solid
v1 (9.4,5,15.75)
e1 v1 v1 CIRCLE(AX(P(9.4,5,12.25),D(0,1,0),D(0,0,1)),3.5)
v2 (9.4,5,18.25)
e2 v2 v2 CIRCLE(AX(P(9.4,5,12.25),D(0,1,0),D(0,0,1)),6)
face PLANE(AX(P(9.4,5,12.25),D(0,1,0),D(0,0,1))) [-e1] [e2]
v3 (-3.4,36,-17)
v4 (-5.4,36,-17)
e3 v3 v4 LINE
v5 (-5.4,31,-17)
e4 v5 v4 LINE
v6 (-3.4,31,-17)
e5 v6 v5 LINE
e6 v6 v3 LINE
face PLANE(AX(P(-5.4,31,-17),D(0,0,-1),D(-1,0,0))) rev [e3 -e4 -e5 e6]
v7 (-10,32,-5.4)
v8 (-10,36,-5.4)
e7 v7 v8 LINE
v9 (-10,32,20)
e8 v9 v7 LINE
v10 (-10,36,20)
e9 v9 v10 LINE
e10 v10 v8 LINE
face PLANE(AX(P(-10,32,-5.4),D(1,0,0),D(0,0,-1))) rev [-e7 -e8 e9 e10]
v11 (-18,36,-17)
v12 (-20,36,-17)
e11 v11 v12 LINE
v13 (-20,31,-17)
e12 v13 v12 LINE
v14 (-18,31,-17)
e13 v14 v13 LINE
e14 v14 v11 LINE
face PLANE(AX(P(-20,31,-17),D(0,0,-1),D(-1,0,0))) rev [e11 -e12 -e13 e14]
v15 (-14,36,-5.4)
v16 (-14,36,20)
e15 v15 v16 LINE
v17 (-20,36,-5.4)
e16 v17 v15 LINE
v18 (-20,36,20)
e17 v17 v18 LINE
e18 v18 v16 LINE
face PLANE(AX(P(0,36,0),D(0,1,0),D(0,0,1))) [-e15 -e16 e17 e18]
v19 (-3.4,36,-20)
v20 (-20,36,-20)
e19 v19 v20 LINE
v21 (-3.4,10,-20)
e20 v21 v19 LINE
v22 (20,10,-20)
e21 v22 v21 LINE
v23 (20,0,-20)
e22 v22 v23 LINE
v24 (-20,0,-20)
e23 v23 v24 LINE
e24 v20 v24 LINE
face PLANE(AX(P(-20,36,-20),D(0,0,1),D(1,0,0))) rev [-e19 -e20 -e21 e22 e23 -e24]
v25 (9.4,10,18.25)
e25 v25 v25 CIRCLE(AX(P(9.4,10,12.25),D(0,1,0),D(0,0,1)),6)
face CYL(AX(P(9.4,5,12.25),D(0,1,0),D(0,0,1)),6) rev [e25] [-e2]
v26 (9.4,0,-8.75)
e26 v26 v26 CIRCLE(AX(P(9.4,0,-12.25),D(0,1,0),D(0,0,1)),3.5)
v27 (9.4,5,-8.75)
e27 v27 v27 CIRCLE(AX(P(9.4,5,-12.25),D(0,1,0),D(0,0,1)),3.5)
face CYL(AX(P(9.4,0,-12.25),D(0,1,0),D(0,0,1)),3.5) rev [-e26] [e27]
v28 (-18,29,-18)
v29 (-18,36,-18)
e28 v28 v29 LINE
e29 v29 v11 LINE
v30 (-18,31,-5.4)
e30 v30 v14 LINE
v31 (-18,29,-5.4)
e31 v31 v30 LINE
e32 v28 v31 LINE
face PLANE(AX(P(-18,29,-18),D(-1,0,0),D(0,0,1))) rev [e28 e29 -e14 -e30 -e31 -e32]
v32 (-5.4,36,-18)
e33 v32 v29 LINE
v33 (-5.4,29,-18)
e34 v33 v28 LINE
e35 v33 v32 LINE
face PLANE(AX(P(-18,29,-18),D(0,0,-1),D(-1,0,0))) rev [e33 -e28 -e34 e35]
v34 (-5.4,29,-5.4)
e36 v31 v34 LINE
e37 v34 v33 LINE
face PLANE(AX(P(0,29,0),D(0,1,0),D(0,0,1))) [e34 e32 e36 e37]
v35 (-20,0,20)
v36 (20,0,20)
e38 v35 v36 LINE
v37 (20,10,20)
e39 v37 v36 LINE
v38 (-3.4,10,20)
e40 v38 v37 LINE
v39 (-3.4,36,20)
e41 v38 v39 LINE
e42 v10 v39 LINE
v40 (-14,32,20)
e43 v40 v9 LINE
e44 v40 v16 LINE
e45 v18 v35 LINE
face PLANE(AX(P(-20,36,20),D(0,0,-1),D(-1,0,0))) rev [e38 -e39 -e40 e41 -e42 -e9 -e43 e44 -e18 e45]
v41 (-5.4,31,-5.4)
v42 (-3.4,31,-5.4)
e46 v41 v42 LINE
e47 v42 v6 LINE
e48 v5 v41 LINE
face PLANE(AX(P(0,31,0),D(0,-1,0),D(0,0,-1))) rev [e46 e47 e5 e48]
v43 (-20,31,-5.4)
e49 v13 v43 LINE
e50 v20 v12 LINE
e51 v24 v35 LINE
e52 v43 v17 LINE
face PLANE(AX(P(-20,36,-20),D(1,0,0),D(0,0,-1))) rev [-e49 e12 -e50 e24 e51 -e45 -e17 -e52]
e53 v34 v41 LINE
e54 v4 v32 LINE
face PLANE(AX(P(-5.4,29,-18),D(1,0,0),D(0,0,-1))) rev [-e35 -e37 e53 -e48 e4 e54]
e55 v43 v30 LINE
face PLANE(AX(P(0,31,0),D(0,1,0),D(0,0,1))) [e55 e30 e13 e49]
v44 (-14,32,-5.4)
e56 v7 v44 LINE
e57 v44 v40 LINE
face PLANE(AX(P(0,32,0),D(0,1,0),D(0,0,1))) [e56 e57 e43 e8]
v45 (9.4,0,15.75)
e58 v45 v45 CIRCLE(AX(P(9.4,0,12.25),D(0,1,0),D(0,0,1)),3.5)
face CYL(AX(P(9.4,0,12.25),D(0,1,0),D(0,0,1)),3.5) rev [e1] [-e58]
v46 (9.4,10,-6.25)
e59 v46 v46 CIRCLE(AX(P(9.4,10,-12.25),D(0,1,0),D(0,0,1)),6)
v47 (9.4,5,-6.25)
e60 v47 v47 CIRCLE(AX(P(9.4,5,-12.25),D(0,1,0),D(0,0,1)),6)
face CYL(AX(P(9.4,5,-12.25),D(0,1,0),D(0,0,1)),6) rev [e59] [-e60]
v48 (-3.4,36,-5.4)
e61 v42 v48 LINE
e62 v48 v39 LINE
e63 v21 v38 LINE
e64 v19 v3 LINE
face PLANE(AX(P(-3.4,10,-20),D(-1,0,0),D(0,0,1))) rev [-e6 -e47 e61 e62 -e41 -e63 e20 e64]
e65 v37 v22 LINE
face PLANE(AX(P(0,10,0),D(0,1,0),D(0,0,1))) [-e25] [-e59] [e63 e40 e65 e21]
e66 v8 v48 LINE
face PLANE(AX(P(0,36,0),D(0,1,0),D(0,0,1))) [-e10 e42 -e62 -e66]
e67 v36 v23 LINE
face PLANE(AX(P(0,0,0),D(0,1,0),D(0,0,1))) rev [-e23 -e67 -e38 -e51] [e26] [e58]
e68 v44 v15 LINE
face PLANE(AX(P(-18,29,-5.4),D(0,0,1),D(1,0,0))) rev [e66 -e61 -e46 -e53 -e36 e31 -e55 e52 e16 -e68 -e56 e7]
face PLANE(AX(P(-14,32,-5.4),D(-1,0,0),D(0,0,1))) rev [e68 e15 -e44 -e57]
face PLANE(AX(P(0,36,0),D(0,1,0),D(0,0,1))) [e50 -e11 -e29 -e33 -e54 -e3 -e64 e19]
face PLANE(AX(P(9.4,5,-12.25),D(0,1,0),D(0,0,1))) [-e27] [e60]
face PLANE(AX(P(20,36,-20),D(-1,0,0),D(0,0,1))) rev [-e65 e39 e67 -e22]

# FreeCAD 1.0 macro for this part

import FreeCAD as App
import Part
import Sketcher

V = App.Vector

doc = App.newDocument("Part")
body = doc.addObject("PartDesign::Body", "Body")

# Sketch on XZ plane
sketch1 = body.newObject("Sketcher::SketchObject", "Sketch")
sketch1.AttachmentSupport = (doc.getObject("XZ_Plane"), [""])
sketch1.MapMode = "FlatFace"
sketch1.addGeometry(Part.LineSegment(V(-20, -20, 0), V(-20, 20, 0)), False)
sketch1.addGeometry(Part.LineSegment(V(-20, 20, 0), V(20, 20, 0)), False)
sketch1.addGeometry(Part.LineSegment(V(20, 20, 0), V(20, -20, 0)), False)
sketch1.addGeometry(Part.LineSegment(V(20, -20, 0), V(-20, -20, 0)), False)
sketch1.addConstraint(Sketcher.Constraint("Coincident", 0, 2, 1, 1))
sketch1.addConstraint(Sketcher.Constraint("Coincident", 1, 2, 2, 1))
sketch1.addConstraint(Sketcher.Constraint("Coincident", 2, 2, 3, 1))
sketch1.addConstraint(Sketcher.Constraint("Coincident", 3, 2, 0, 1))
sketch1.addConstraint(Sketcher.Constraint("Vertical", 0))
sketch1.addConstraint(Sketcher.Constraint("Horizontal", 1))
sketch1.addConstraint(Sketcher.Constraint("Vertical", 2))
sketch1.addConstraint(Sketcher.Constraint("Horizontal", 3))
sketch1.addConstraint(Sketcher.Constraint("Symmetric", 0, 2, 2, 2, -1, 1))
sketch1.addConstraint(Sketcher.Constraint("Equal", 3, 0))
sketch1.addConstraint(Sketcher.Constraint("DistanceX", 1, 1, 1, 2, 40.0))
pad1 = body.newObject("PartDesign::Pad", "Pad")
pad1.Profile = sketch1
pad1.Length = 36
pad1.Reversed = True

# Sketch on XZ plane
sketch2 = body.newObject("Sketcher::SketchObject", "Sketch001")
sketch2.AttachmentSupport = (doc.getObject("XZ_Plane"), [""])
sketch2.MapMode = "FlatFace"
sketch2.AttachmentOffset = App.Placement(V(0, 0, -36), App.Rotation())
sketch2.addGeometry(Part.LineSegment(V(-18, -18, 0), V(-18, -5.4, 0)), False)
sketch2.addGeometry(Part.LineSegment(V(-18, -5.4, 0), V(-5.4, -5.4, 0)), False)
sketch2.addGeometry(Part.LineSegment(V(-5.4, -5.4, 0), V(-5.4, -18, 0)), False)
sketch2.addGeometry(Part.LineSegment(V(-5.4, -18, 0), V(-18, -18, 0)), False)
sketch2.addConstraint(Sketcher.Constraint("Coincident", 0, 2, 1, 1))
sketch2.addConstraint(Sketcher.Constraint("Coincident", 1, 2, 2, 1))
sketch2.addConstraint(Sketcher.Constraint("Coincident", 2, 2, 3, 1))
sketch2.addConstraint(Sketcher.Constraint("Coincident", 3, 2, 0, 1))
sketch2.addConstraint(Sketcher.Constraint("Vertical", 0))
sketch2.addConstraint(Sketcher.Constraint("Horizontal", 1))
sketch2.addConstraint(Sketcher.Constraint("Vertical", 2))
sketch2.addConstraint(Sketcher.Constraint("Horizontal", 3))
sketch2.addConstraint(Sketcher.Constraint("Equal", 3, 0))
sketch2.addConstraint(Sketcher.Constraint("DistanceX", 1, 1, 1, 2, 12.6))
sketch2.addConstraint(Sketcher.Constraint("DistanceX", 0, 2, -1, 1, 18.0))
sketch2.addConstraint(Sketcher.Constraint("DistanceY", 2, 2, -1, 1, 18.0))
pocket1 = body.newObject("PartDesign::Pocket", "Pocket")
pocket1.Profile = sketch2
pocket1.Length = 7
pocket1.Reversed = True

# Sketch on XZ plane
sketch3 = body.newObject("Sketcher::SketchObject", "Sketch002")
sketch3.AttachmentSupport = (doc.getObject("XZ_Plane"), [""])
sketch3.MapMode = "FlatFace"
sketch3.AttachmentOffset = App.Placement(V(0, 0, -36), App.Rotation())
sketch3.addGeometry(Part.LineSegment(V(-20, -17, 0), V(-20, -5.4, 0)), False)
sketch3.addGeometry(Part.LineSegment(V(-20, -5.4, 0), V(-18, -5.4, 0)), False)
sketch3.addGeometry(Part.LineSegment(V(-18, -5.4, 0), V(-18, -17, 0)), False)
sketch3.addGeometry(Part.LineSegment(V(-18, -17, 0), V(-20, -17, 0)), False)
sketch3.addGeometry(Part.LineSegment(V(-5.4, -17, 0), V(-5.4, -5.4, 0)), False)
sketch3.addGeometry(Part.LineSegment(V(-5.4, -5.4, 0), V(-3.4, -5.4, 0)), False)
sketch3.addGeometry(Part.LineSegment(V(-3.4, -5.4, 0), V(-3.4, -17, 0)), False)
sketch3.addGeometry(Part.LineSegment(V(-3.4, -17, 0), V(-5.4, -17, 0)), False)
sketch3.addConstraint(Sketcher.Constraint("Coincident", 0, 2, 1, 1))
sketch3.addConstraint(Sketcher.Constraint("Coincident", 1, 2, 2, 1))
sketch3.addConstraint(Sketcher.Constraint("Coincident", 2, 2, 3, 1))
sketch3.addConstraint(Sketcher.Constraint("Coincident", 3, 2, 0, 1))
sketch3.addConstraint(Sketcher.Constraint("Coincident", 4, 2, 5, 1))
sketch3.addConstraint(Sketcher.Constraint("Coincident", 5, 2, 6, 1))
sketch3.addConstraint(Sketcher.Constraint("Coincident", 6, 2, 7, 1))
sketch3.addConstraint(Sketcher.Constraint("Coincident", 7, 2, 4, 1))
sketch3.addConstraint(Sketcher.Constraint("Vertical", 0))
sketch3.addConstraint(Sketcher.Constraint("Horizontal", 1))
sketch3.addConstraint(Sketcher.Constraint("Vertical", 2))
sketch3.addConstraint(Sketcher.Constraint("Horizontal", 3))
sketch3.addConstraint(Sketcher.Constraint("Vertical", 4))
sketch3.addConstraint(Sketcher.Constraint("Horizontal", 5))
sketch3.addConstraint(Sketcher.Constraint("Vertical", 6))
sketch3.addConstraint(Sketcher.Constraint("Horizontal", 7))
sketch3.addConstraint(Sketcher.Constraint("Horizontal", 1, 2, 4, 2))
sketch3.addConstraint(Sketcher.Constraint("Horizontal", 3, 2, 6, 2))
sketch3.addConstraint(Sketcher.Constraint("Equal", 3, 5))
sketch3.addConstraint(Sketcher.Constraint("DistanceX", 1, 1, 1, 2, 2.0))
sketch3.addConstraint(Sketcher.Constraint("DistanceY", 0, 1, 0, 2, 11.6))
sketch3.addConstraint(Sketcher.Constraint("DistanceX", 0, 2, -1, 1, 20.0))
sketch3.addConstraint(Sketcher.Constraint("DistanceY", 2, 2, -1, 1, 17.0))
sketch3.addConstraint(Sketcher.Constraint("DistanceX", 4, 2, -1, 1, 5.4))
pocket2 = body.newObject("PartDesign::Pocket", "Pocket001")
pocket2.Profile = sketch3
pocket2.Length = 5
pocket2.Reversed = True

# Sketch on XZ plane
sketch4 = body.newObject("Sketcher::SketchObject", "Sketch003")
sketch4.AttachmentSupport = (doc.getObject("XZ_Plane"), [""])
sketch4.MapMode = "FlatFace"
sketch4.AttachmentOffset = App.Placement(V(0, 0, -36), App.Rotation())
sketch4.addGeometry(Part.LineSegment(V(-14, -5.4, 0), V(-14, 20, 0)), False)
sketch4.addGeometry(Part.LineSegment(V(-14, 20, 0), V(-10, 20, 0)), False)
sketch4.addGeometry(Part.LineSegment(V(-10, 20, 0), V(-10, -5.4, 0)), False)
sketch4.addGeometry(Part.LineSegment(V(-10, -5.4, 0), V(-14, -5.4, 0)), False)
sketch4.addConstraint(Sketcher.Constraint("Coincident", 0, 2, 1, 1))
sketch4.addConstraint(Sketcher.Constraint("Coincident", 1, 2, 2, 1))
sketch4.addConstraint(Sketcher.Constraint("Coincident", 2, 2, 3, 1))
sketch4.addConstraint(Sketcher.Constraint("Coincident", 3, 2, 0, 1))
sketch4.addConstraint(Sketcher.Constraint("Vertical", 0))
sketch4.addConstraint(Sketcher.Constraint("Horizontal", 1))
sketch4.addConstraint(Sketcher.Constraint("Vertical", 2))
sketch4.addConstraint(Sketcher.Constraint("Horizontal", 3))
sketch4.addConstraint(Sketcher.Constraint("DistanceX", 1, 1, 1, 2, 4.0))
sketch4.addConstraint(Sketcher.Constraint("DistanceY", 0, 1, 0, 2, 25.4))
sketch4.addConstraint(Sketcher.Constraint("DistanceX", 0, 2, -1, 1, 14.0))
sketch4.addConstraint(Sketcher.Constraint("DistanceY", -1, 1, 0, 2, 20.0))
pocket3 = body.newObject("PartDesign::Pocket", "Pocket002")
pocket3.Profile = sketch4
pocket3.Length = 4
pocket3.Reversed = True

# Sketch on XZ plane
sketch5 = body.newObject("Sketcher::SketchObject", "Sketch004")
sketch5.AttachmentSupport = (doc.getObject("XZ_Plane"), [""])
sketch5.MapMode = "FlatFace"
sketch5.AttachmentOffset = App.Placement(V(0, 0, -36), App.Rotation())
sketch5.addGeometry(Part.LineSegment(V(-3.4, -20, 0), V(-3.4, 20, 0)), False)
sketch5.addGeometry(Part.LineSegment(V(-3.4, 20, 0), V(20, 20, 0)), False)
sketch5.addGeometry(Part.LineSegment(V(20, 20, 0), V(20, -20, 0)), False)
sketch5.addGeometry(Part.LineSegment(V(20, -20, 0), V(-3.4, -20, 0)), False)
sketch5.addConstraint(Sketcher.Constraint("Coincident", 0, 2, 1, 1))
sketch5.addConstraint(Sketcher.Constraint("Coincident", 1, 2, 2, 1))
sketch5.addConstraint(Sketcher.Constraint("Coincident", 2, 2, 3, 1))
sketch5.addConstraint(Sketcher.Constraint("Coincident", 3, 2, 0, 1))
sketch5.addConstraint(Sketcher.Constraint("Vertical", 0))
sketch5.addConstraint(Sketcher.Constraint("Horizontal", 1))
sketch5.addConstraint(Sketcher.Constraint("Vertical", 2))
sketch5.addConstraint(Sketcher.Constraint("Horizontal", 3))
sketch5.addConstraint(Sketcher.Constraint("DistanceY", 0, 1, 0, 2, 40.0))
sketch5.addConstraint(Sketcher.Constraint("DistanceX", 1, 1, 1, 2, 23.4))
sketch5.addConstraint(Sketcher.Constraint("DistanceY", -1, 1, 0, 2, 20.0))
sketch5.addConstraint(Sketcher.Constraint("DistanceX", -1, 1, 1, 2, 20.0))
pocket4 = body.newObject("PartDesign::Pocket", "Pocket003")
pocket4.Profile = sketch5
pocket4.Length = 26
pocket4.Reversed = True

# Sketch on XZ plane
sketch6 = body.newObject("Sketcher::SketchObject", "Sketch005")
sketch6.AttachmentSupport = (doc.getObject("XZ_Plane"), [""])
sketch6.MapMode = "FlatFace"
sketch6.AttachmentOffset = App.Placement(V(0, 0, -10), App.Rotation())
sketch6.addGeometry(Part.Circle(V(9.4, -12.25, 0), V(0, 0, 1), 6), False)
sketch6.addGeometry(Part.Circle(V(9.4, 12.25, 0), V(0, 0, 1), 6), False)
sketch6.addConstraint(Sketcher.Constraint("Equal", 0, 1))
sketch6.addConstraint(Sketcher.Constraint("Symmetric", 0, 3, 1, 3, -1))
sketch6.addConstraint(Sketcher.Constraint("Diameter", 0, 12.0))
sketch6.addConstraint(Sketcher.Constraint("DistanceX", -1, 1, 0, 3, 9.4))
sketch6.addConstraint(Sketcher.Constraint("DistanceY", 0, 3, 1, 3, 24.5))
pocket5 = body.newObject("PartDesign::Pocket", "Pocket004")
pocket5.Profile = sketch6
pocket5.Length = 5
pocket5.Reversed = True

# Sketch on XZ plane
sketch7 = body.newObject("Sketcher::SketchObject", "Sketch006")
sketch7.AttachmentSupport = (doc.getObject("XZ_Plane"), [""])
sketch7.MapMode = "FlatFace"
sketch7.AttachmentOffset = App.Placement(V(0, 0, -10), App.Rotation())
sketch7.addGeometry(Part.Circle(V(9.4, -12.25, 0), V(0, 0, 1), 3.5), False)
sketch7.addGeometry(Part.Circle(V(9.4, 12.25, 0), V(0, 0, 1), 3.5), False)
sketch7.addConstraint(Sketcher.Constraint("Equal", 0, 1))
sketch7.addConstraint(Sketcher.Constraint("Symmetric", 0, 3, 1, 3, -1))
sketch7.addConstraint(Sketcher.Constraint("Diameter", 0, 7.0))
sketch7.addConstraint(Sketcher.Constraint("DistanceX", -1, 1, 0, 3, 9.4))
sketch7.addConstraint(Sketcher.Constraint("DistanceY", 0, 3, 1, 3, 24.5))
pocket6 = body.newObject("PartDesign::Pocket", "Pocket005")
pocket6.Profile = sketch7
pocket6.Type = "ThroughAll"
pocket6.Reversed = True

doc.recompute()
